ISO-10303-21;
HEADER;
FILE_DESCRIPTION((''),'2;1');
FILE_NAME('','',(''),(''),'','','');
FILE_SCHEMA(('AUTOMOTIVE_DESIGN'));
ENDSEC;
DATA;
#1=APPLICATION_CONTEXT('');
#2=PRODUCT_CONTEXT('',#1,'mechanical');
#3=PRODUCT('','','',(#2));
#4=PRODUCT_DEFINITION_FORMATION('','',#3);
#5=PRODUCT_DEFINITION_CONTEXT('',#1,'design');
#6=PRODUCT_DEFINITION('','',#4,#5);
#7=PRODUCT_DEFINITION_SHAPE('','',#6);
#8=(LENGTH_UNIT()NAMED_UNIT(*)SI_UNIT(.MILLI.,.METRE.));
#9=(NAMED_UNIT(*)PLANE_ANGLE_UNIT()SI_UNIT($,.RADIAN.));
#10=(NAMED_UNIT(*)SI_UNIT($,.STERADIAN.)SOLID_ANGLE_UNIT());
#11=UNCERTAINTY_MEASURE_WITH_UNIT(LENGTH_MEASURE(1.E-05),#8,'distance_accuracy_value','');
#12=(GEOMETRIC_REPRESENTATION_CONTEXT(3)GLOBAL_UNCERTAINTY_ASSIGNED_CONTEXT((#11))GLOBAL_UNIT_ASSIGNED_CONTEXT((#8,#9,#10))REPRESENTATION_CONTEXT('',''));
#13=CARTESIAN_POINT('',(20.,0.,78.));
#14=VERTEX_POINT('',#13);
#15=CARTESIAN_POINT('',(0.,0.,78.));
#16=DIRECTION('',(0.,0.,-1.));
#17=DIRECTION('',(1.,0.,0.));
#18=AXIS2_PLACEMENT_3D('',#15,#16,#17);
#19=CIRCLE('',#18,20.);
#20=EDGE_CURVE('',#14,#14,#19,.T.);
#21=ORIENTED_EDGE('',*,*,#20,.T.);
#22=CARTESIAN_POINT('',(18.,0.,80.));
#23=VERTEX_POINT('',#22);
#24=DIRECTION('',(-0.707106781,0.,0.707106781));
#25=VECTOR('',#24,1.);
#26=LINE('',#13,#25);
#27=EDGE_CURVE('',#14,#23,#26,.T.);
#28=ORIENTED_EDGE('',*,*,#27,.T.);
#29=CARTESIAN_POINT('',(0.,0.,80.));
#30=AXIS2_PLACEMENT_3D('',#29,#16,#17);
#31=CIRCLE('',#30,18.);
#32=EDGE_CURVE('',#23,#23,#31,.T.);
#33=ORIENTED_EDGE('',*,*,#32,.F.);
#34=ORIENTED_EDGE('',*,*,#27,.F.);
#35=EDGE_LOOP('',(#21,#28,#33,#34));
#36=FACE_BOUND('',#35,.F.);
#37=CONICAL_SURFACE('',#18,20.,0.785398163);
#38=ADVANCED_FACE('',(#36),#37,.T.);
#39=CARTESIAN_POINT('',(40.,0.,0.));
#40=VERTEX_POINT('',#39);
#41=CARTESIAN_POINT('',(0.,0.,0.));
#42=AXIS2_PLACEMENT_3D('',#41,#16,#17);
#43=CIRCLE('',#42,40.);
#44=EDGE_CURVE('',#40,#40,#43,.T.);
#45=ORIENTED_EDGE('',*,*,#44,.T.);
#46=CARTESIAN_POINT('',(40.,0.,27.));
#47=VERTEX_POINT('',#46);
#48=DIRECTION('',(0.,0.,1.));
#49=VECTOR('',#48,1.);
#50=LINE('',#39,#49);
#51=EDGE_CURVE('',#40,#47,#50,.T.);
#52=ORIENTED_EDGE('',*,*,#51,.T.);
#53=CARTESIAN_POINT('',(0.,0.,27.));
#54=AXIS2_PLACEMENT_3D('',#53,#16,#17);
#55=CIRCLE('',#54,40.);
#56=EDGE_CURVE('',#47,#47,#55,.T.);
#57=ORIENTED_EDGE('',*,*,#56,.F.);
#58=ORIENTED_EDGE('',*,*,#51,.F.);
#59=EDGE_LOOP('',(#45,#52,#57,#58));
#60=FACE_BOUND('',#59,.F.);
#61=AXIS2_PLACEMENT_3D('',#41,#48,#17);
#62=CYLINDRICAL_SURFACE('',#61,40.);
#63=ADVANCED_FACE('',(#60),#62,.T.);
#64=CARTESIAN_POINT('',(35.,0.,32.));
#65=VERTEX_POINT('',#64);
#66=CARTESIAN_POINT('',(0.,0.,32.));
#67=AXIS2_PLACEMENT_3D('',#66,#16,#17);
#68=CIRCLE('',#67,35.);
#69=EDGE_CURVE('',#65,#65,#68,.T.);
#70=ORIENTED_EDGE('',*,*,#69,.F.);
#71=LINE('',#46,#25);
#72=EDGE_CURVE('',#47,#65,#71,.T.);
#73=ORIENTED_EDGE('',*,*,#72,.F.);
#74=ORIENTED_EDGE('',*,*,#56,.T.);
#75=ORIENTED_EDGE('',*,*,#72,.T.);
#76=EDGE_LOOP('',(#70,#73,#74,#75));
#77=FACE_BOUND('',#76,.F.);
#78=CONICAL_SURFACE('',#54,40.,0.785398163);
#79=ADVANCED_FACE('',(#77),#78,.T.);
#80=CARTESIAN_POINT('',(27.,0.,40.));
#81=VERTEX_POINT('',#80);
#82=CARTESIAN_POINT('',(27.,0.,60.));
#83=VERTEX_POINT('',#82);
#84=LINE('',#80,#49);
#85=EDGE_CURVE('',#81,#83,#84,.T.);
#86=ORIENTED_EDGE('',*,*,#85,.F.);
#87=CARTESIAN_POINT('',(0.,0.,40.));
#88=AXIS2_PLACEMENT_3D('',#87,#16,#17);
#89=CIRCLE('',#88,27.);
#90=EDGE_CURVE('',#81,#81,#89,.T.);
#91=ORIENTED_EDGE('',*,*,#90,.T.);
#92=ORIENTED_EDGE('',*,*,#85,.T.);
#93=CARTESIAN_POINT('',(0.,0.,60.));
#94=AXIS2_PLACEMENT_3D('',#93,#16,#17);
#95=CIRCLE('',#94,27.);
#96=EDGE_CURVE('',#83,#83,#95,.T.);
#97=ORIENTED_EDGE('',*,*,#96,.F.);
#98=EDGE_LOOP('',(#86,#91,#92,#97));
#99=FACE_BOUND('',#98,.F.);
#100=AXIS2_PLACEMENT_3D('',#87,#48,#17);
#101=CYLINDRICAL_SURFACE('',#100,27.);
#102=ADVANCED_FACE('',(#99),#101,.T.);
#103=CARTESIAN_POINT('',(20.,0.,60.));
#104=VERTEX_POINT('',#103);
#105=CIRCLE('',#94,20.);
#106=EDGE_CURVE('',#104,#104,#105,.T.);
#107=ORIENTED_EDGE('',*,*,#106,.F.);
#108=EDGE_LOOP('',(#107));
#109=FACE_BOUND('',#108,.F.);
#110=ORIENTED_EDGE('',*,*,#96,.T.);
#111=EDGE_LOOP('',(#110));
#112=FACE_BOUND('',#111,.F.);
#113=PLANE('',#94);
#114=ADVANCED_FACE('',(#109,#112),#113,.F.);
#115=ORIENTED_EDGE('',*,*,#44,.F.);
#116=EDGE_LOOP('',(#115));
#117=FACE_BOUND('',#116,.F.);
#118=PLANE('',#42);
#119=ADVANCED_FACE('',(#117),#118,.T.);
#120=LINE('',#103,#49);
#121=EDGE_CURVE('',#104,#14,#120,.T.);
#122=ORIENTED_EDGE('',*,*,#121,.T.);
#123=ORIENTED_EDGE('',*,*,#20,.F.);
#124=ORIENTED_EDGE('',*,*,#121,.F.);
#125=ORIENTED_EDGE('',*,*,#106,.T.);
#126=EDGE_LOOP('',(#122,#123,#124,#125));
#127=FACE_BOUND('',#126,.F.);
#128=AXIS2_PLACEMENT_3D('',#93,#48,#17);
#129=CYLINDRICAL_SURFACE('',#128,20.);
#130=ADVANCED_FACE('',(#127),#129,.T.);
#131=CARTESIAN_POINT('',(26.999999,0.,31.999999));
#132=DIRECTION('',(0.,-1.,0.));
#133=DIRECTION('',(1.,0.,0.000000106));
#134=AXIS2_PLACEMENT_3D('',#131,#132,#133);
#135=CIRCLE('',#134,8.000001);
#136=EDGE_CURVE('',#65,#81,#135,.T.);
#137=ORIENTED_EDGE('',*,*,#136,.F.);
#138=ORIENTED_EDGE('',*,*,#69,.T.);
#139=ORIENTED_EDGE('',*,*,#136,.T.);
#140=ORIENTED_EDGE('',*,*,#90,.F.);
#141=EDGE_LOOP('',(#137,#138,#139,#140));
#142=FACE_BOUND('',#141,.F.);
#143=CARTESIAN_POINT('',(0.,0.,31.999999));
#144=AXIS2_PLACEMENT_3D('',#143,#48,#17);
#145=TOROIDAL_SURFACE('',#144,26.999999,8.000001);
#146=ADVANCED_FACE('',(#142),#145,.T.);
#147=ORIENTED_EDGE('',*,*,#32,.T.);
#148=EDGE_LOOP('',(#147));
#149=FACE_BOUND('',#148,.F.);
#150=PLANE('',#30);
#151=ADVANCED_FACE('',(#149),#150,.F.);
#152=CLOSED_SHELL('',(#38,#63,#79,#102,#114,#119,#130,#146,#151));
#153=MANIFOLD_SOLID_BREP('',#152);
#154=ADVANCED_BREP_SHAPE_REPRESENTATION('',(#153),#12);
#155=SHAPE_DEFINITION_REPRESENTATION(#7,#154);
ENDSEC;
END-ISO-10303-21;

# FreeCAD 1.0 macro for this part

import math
import FreeCAD as App
import Part
import Sketcher
from FreeCAD import Vector
Q = App.Units.Quantity

doc = App.newDocument("Part")
params = doc.addObject("Spreadsheet::Sheet", "Params")
for row, (alias, value) in enumerate([
    ("sketch1_radius", "8.000001 mm"),
    ("sketch1_width", "40 mm"),
    ("sketch1_width2", "7 mm"),
    ("sketch1_width3", "18 mm"),
    ("sketch1_height", "80 mm"),
    ("revolution_angle", "360 deg"),
], start=1):
    params.set(f"A{row}", alias)
    params.set(f"B{row}", "=" + value)
    params.setAlias(f"B{row}", alias)

body = doc.addObject("PartDesign::Body", "Body")

sketch1 = body.newObject("Sketcher::SketchObject", "Sketch")
sketch1.AttachmentSupport = (doc.getObject("XZ_Plane"), [""])
sketch1.MapMode = "FlatFace"
sketch1.addGeometry(Part.LineSegment(Vector(0, 80, 0), Vector(0, 0, 0)), False)
sketch1.addGeometry(Part.LineSegment(Vector(0, 0, 0), Vector(40, 0, 0)), False)
sketch1.addGeometry(Part.LineSegment(Vector(40, 0, 0), Vector(40, 27, 0)), False)
sketch1.addGeometry(Part.LineSegment(Vector(40, 27, 0), Vector(35, 32, 0)), False)
sketch1.addGeometry(Part.ArcOfCircle(Part.Circle(Vector(26.999999, 31.999999, 0), Vector(0, 0, 1), 8.000001), math.radians(0.000006), math.radians(89.999994)), False)
sketch1.addGeometry(Part.LineSegment(Vector(27, 40, 0), Vector(27, 60, 0)), False)
sketch1.addGeometry(Part.LineSegment(Vector(27, 60, 0), Vector(20, 60, 0)), False)
sketch1.addGeometry(Part.LineSegment(Vector(20, 60, 0), Vector(20, 78, 0)), False)
sketch1.addGeometry(Part.LineSegment(Vector(20, 78, 0), Vector(18, 80, 0)), False)
sketch1.addGeometry(Part.LineSegment(Vector(18, 80, 0), Vector(0, 80, 0)), False)
sketch1.addConstraint(Sketcher.Constraint("Coincident", 0, 2, 1, 1))
sketch1.addConstraint(Sketcher.Constraint("Coincident", 1, 2, 2, 1))
sketch1.addConstraint(Sketcher.Constraint("Coincident", 2, 2, 3, 1))
sketch1.addConstraint(Sketcher.Constraint("Coincident", 3, 2, 4, 1))
sketch1.addConstraint(Sketcher.Constraint("Coincident", 4, 2, 5, 1))
sketch1.addConstraint(Sketcher.Constraint("Coincident", 5, 2, 6, 1))
sketch1.addConstraint(Sketcher.Constraint("Coincident", 6, 2, 7, 1))
sketch1.addConstraint(Sketcher.Constraint("Coincident", 7, 2, 8, 1))
sketch1.addConstraint(Sketcher.Constraint("Coincident", 8, 2, 9, 1))
sketch1.addConstraint(Sketcher.Constraint("Coincident", 9, 2, 0, 1))
sketch1.addConstraint(Sketcher.Constraint("Vertical", 0))
sketch1.addConstraint(Sketcher.Constraint("Horizontal", 1))
sketch1.addConstraint(Sketcher.Constraint("Vertical", 2))
sketch1.addConstraint(Sketcher.Constraint("Vertical", 5))
sketch1.addConstraint(Sketcher.Constraint("Horizontal", 6))
sketch1.addConstraint(Sketcher.Constraint("Vertical", 7))
sketch1.addConstraint(Sketcher.Constraint("Horizontal", 9))
sketch1.addConstraint(Sketcher.Constraint("Coincident", 0, 2, -1, 1))
sketch1.addConstraint(Sketcher.Constraint("Parallel", 3, 8))
sketch1.addConstraint(Sketcher.Constraint("Horizontal", 4, 3, 3, 2))
sketch1.addConstraint(Sketcher.Constraint("Equal", 9, 7))
sketch1.addConstraint(Sketcher.Constraint("Radius", 4, 8.000001))
sketch1.addConstraint(Sketcher.Constraint("DistanceX", 1, 1, 1, 2, 40.0))
sketch1.addConstraint(Sketcher.Constraint("DistanceX", 6, 2, 6, 1, 7.0))
sketch1.addConstraint(Sketcher.Constraint("DistanceX", 9, 2, 9, 1, 18.0))
sketch1.addConstraint(Sketcher.Constraint("DistanceY", 0, 2, 0, 1, 80.0))
sketch1.addConstraint(Sketcher.Constraint("DistanceY", 2, 1, 2, 2, 27.0))
sketch1.addConstraint(Sketcher.Constraint("DistanceY", 5, 1, 5, 2, 20.0))
sketch1.addConstraint(Sketcher.Constraint("Angle", 3, Q("135 deg")))
sketch1.addConstraint(Sketcher.Constraint("DistanceX", -1, 1, 4, 3, 26.999999))
sketch1.setExpression("Constraints[21]", "Params.sketch1_radius")
sketch1.setExpression("Constraints[22]", "Params.sketch1_width")
sketch1.setExpression("Constraints[23]", "Params.sketch1_width2")
sketch1.setExpression("Constraints[24]", "Params.sketch1_width3")
sketch1.setExpression("Constraints[25]", "Params.sketch1_height")
revolution = body.newObject("PartDesign::Revolution", "Revolution")
revolution.Profile = sketch1
revolution.ReferenceAxis = (sketch1, ["V_Axis"])
revolution.setExpression("Angle", "Params.revolution_angle")

doc.recompute()
